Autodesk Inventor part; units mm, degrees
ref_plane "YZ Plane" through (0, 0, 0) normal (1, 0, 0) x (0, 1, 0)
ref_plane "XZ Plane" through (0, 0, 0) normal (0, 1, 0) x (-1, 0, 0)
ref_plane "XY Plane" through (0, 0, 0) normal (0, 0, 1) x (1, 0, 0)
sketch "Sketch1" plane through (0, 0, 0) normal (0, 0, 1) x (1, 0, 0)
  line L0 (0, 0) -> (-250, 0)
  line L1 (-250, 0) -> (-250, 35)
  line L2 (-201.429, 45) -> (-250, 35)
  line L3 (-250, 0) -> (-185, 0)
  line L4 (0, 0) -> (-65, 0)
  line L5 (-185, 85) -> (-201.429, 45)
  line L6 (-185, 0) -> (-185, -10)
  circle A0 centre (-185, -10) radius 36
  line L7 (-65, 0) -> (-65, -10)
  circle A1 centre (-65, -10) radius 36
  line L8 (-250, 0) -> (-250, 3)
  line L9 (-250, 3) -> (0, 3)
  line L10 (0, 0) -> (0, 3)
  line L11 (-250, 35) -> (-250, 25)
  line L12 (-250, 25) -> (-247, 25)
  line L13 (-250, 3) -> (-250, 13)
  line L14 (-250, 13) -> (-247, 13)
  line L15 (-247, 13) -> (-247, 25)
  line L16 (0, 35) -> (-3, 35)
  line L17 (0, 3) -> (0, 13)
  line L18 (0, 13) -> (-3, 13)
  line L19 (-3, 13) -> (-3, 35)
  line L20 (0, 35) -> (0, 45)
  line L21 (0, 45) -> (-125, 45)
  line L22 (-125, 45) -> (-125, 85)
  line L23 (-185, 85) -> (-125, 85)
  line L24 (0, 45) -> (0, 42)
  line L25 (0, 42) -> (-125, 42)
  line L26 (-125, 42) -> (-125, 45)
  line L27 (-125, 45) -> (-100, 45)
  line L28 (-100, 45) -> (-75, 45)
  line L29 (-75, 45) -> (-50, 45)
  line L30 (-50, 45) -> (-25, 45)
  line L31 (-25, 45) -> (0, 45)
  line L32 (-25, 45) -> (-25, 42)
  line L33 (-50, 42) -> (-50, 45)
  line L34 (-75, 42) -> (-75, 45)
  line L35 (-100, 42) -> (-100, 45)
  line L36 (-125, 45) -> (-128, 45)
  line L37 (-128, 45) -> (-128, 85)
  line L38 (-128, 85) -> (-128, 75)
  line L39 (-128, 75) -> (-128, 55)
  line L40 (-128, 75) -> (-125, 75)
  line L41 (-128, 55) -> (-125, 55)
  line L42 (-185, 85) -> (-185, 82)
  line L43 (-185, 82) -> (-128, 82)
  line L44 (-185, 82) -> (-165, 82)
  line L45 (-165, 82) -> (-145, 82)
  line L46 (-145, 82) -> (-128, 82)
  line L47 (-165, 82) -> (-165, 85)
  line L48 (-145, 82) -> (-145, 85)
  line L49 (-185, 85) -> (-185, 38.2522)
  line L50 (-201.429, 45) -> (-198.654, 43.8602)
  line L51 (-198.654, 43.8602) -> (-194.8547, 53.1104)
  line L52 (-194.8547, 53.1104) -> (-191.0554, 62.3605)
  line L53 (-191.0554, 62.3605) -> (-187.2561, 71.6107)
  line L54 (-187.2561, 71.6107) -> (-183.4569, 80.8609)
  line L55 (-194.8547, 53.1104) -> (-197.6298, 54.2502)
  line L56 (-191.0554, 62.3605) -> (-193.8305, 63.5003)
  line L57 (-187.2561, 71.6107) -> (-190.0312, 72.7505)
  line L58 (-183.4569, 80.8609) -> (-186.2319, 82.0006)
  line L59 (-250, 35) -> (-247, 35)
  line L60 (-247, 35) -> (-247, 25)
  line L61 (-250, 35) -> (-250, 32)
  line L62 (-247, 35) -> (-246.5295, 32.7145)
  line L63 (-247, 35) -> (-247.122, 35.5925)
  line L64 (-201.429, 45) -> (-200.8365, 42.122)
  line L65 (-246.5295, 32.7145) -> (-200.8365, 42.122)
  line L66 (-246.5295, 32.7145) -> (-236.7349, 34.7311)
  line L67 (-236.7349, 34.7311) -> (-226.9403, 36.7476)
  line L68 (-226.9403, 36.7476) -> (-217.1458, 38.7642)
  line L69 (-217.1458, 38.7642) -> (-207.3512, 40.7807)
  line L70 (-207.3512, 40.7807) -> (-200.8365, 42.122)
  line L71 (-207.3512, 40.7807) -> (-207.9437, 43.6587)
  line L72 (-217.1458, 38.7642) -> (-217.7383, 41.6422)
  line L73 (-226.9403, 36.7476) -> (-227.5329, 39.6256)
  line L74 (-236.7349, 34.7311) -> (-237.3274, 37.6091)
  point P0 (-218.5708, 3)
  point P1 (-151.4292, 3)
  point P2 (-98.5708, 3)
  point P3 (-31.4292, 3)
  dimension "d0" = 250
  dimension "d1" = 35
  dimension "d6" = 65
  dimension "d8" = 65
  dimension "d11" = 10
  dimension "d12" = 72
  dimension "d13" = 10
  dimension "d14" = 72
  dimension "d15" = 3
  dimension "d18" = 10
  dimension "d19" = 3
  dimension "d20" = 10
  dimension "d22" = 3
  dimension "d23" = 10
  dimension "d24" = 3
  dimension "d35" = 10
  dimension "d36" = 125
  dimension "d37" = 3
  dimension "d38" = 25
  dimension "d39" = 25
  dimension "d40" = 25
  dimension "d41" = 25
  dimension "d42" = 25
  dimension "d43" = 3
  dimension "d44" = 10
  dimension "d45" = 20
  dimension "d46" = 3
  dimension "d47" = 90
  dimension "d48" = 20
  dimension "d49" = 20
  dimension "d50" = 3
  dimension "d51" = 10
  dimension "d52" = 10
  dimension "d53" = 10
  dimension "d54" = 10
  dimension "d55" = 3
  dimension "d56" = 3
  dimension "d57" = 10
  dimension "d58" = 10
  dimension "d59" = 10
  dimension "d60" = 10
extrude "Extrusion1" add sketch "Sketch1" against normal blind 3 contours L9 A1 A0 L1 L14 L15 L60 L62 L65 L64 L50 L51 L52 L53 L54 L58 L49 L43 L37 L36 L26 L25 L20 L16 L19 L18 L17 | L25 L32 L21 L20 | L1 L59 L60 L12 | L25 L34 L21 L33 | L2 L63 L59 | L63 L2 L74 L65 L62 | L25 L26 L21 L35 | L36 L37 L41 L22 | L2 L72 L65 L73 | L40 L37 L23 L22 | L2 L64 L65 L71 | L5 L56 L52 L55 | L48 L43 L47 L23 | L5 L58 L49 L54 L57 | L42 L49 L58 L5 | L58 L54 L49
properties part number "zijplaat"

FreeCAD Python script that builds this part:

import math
import FreeCAD as App
import Part
import Sketcher

V = App.Vector
Q = App.Units.Quantity

doc = App.newDocument("Part")
body = doc.addObject("PartDesign::Body", "Body")

# Sketch on XY plane
sketch1 = body.newObject("Sketcher::SketchObject", "Sketch")
sketch1.AttachmentSupport = (doc.getObject("XY_Plane"), [""])
sketch1.MapMode = "FlatFace"
sketch1.addGeometry([
    Part.LineSegment(V(-31.4, 3, 0), V(0, 3, 0)),  # 0
    Part.LineSegment(V(0, 3, 0), V(0, 13, 0)),  # 1
    Part.LineSegment(V(0, 13, 0), V(-3, 13, 0)),  # 2
    Part.LineSegment(V(-3, 13, 0), V(-3, 35, 0)),  # 3
    Part.LineSegment(V(-3, 35, 0), V(0, 35, 0)),  # 4
    Part.LineSegment(V(0, 35, 0), V(0, 45, 0)),  # 5
    Part.LineSegment(V(0, 45, 0), V(-25, 45, 0)),  # 6
    Part.LineSegment(V(-25, 45, 0), V(-25, 42, 0)),  # 7
    Part.LineSegment(V(-25, 42, 0), V(-50, 42, 0)),  # 8
    Part.LineSegment(V(-50, 42, 0), V(-50, 45, 0)),  # 9
    Part.LineSegment(V(-50, 45, 0), V(-75, 45, 0)),  # 10
    Part.LineSegment(V(-75, 45, 0), V(-75, 42, 0)),  # 11
    Part.LineSegment(V(-75, 42, 0), V(-100, 42, 0)),  # 12
    Part.LineSegment(V(-100, 42, 0), V(-100, 45, 0)),  # 13
    Part.LineSegment(V(-100, 45, 0), V(-125, 45, 0)),  # 14
    Part.LineSegment(V(-125, 45, 0), V(-125, 55, 0)),  # 15
    Part.LineSegment(V(-125, 55, 0), V(-128, 55, 0)),  # 16
    Part.LineSegment(V(-128, 55, 0), V(-128, 75, 0)),  # 17
    Part.LineSegment(V(-128, 75, 0), V(-125, 75, 0)),  # 18
    Part.LineSegment(V(-125, 75, 0), V(-125, 85, 0)),  # 19
    Part.LineSegment(V(-125, 85, 0), V(-128, 85, 0)),  # 20
    Part.LineSegment(V(-128, 85, 0), V(-128, 82, 0)),  # 21
    Part.LineSegment(V(-128, 82, 0), V(-145, 82, 0)),  # 22
    Part.LineSegment(V(-145, 82, 0), V(-145, 85, 0)),  # 23
    Part.LineSegment(V(-145, 85, 0), V(-165, 85, 0)),  # 24
    Part.LineSegment(V(-165, 85, 0), V(-165, 82, 0)),  # 25
    Part.LineSegment(V(-165, 82, 0), V(-185, 82, 0)),  # 26
    Part.LineSegment(V(-185, 82, 0), V(-185, 85, 0)),  # 27
    Part.LineSegment(V(-185, 85, 0), V(-190, 72.8, 0)),  # 28
    Part.LineSegment(V(-190, 72.8, 0), V(-187.3, 71.6, 0)),  # 29
    Part.LineSegment(V(-187.3, 71.6, 0), V(-191.1, 62.4, 0)),  # 30
    Part.LineSegment(V(-191.1, 62.4, 0), V(-193.8, 63.5, 0)),  # 31
    Part.LineSegment(V(-193.8, 63.5, 0), V(-197.6, 54.3, 0)),  # 32
    Part.LineSegment(V(-197.6, 54.3, 0), V(-194.9, 53.1, 0)),  # 33
    Part.LineSegment(V(-194.9, 53.1, 0), V(-198.7, 43.9, 0)),  # 34
    Part.LineSegment(V(-198.7, 43.9, 0), V(-201.4, 45, 0)),  # 35
    Part.LineSegment(V(-201.4, 45, 0), V(-207.9, 43.7, 0)),  # 36
    Part.LineSegment(V(-207.9, 43.7, 0), V(-207.4, 40.8, 0)),  # 37
    Part.LineSegment(V(-207.4, 40.8, 0), V(-217.1, 38.8, 0)),  # 38
    Part.LineSegment(V(-217.1, 38.8, 0), V(-217.7, 41.6, 0)),  # 39
    Part.LineSegment(V(-217.7, 41.6, 0), V(-227.5, 39.6, 0)),  # 40
    Part.LineSegment(V(-227.5, 39.6, 0), V(-226.9, 36.7, 0)),  # 41
    Part.LineSegment(V(-226.9, 36.7, 0), V(-236.7, 34.7, 0)),  # 42
    Part.LineSegment(V(-236.7, 34.7, 0), V(-237.3, 37.6, 0)),  # 43
    Part.LineSegment(V(-237.3, 37.6, 0), V(-250, 35, 0)),  # 44
    Part.LineSegment(V(-250, 35, 0), V(-250, 25, 0)),  # 45
    Part.LineSegment(V(-250, 25, 0), V(-247, 25, 0)),  # 46
    Part.LineSegment(V(-247, 25, 0), V(-247, 13, 0)),  # 47
    Part.LineSegment(V(-247, 13, 0), V(-250, 13, 0)),  # 48
    Part.LineSegment(V(-250, 13, 0), V(-250, 3, 0)),  # 49
    Part.LineSegment(V(-250, 3, 0), V(-218.6, 3, 0)),  # 50
    Part.ArcOfCircle(Part.Circle(V(-185, -10, 0), V(0, 0, 1), 36), math.radians(21), math.radians(159)),  # 51
    Part.LineSegment(V(-151.4, 3, 0), V(-98.6, 3, 0)),  # 52
    Part.ArcOfCircle(Part.Circle(V(-65, -10, 0), V(0, 0, 1), 36), math.radians(21), math.radians(159)),  # 53
], False)
sketch1.addConstraint([
    Sketcher.Constraint("Coincident", 0, 2, 1, 1),
    Sketcher.Constraint("Coincident", 1, 2, 2, 1),
    Sketcher.Constraint("Coincident", 2, 2, 3, 1),
    Sketcher.Constraint("Coincident", 3, 2, 4, 1),
    Sketcher.Constraint("Coincident", 4, 2, 5, 1),
    Sketcher.Constraint("Coincident", 5, 2, 6, 1),
    Sketcher.Constraint("Coincident", 6, 2, 7, 1),
    Sketcher.Constraint("Coincident", 7, 2, 8, 1),
    Sketcher.Constraint("Coincident", 8, 2, 9, 1),
    Sketcher.Constraint("Coincident", 9, 2, 10, 1),
    Sketcher.Constraint("Coincident", 10, 2, 11, 1),
    Sketcher.Constraint("Coincident", 11, 2, 12, 1),
    Sketcher.Constraint("Coincident", 12, 2, 13, 1),
    Sketcher.Constraint("Coincident", 13, 2, 14, 1),
    Sketcher.Constraint("Coincident", 14, 2, 15, 1),
    Sketcher.Constraint("Coincident", 15, 2, 16, 1),
    Sketcher.Constraint("Coincident", 16, 2, 17, 1),
    Sketcher.Constraint("Coincident", 17, 2, 18, 1),
    Sketcher.Constraint("Coincident", 18, 2, 19, 1),
    Sketcher.Constraint("Coincident", 19, 2, 20, 1),
    Sketcher.Constraint("Coincident", 20, 2, 21, 1),
    Sketcher.Constraint("Coincident", 21, 2, 22, 1),
    Sketcher.Constraint("Coincident", 22, 2, 23, 1),
    Sketcher.Constraint("Coincident", 23, 2, 24, 1),
    Sketcher.Constraint("Coincident", 24, 2, 25, 1),
    Sketcher.Constraint("Coincident", 25, 2, 26, 1),
    Sketcher.Constraint("Coincident", 26, 2, 27, 1),
    Sketcher.Constraint("Coincident", 27, 2, 28, 1),
    Sketcher.Constraint("Coincident", 28, 2, 29, 1),
    Sketcher.Constraint("Coincident", 29, 2, 30, 1),
    Sketcher.Constraint("Coincident", 30, 2, 31, 1),
    Sketcher.Constraint("Coincident", 31, 2, 32, 1),
    Sketcher.Constraint("Coincident", 32, 2, 33, 1),
    Sketcher.Constraint("Coincident", 33, 2, 34, 1),
    Sketcher.Constraint("Coincident", 34, 2, 35, 1),
    Sketcher.Constraint("Coincident", 35, 2, 36, 1),
    Sketcher.Constraint("Coincident", 36, 2, 37, 1),
    Sketcher.Constraint("Coincident", 37, 2, 38, 1),
    Sketcher.Constraint("Coincident", 38, 2, 39, 1),
    Sketcher.Constraint("Coincident", 39, 2, 40, 1),
    Sketcher.Constraint("Coincident", 40, 2, 41, 1),
    Sketcher.Constraint("Coincident", 41, 2, 42, 1),
    Sketcher.Constraint("Coincident", 42, 2, 43, 1),
    Sketcher.Constraint("Coincident", 43, 2, 44, 1),
    Sketcher.Constraint("Coincident", 44, 2, 45, 1),
    Sketcher.Constraint("Coincident", 45, 2, 46, 1),
    Sketcher.Constraint("Coincident", 46, 2, 47, 1),
    Sketcher.Constraint("Coincident", 47, 2, 48, 1),
    Sketcher.Constraint("Coincident", 48, 2, 49, 1),
    Sketcher.Constraint("Coincident", 49, 2, 50, 1),
    Sketcher.Constraint("Coincident", 50, 2, 51, 2),
    Sketcher.Constraint("Coincident", 51, 1, 52, 1),
    Sketcher.Constraint("Coincident", 52, 2, 53, 2),
    Sketcher.Constraint("Coincident", 53, 1, 0, 1),
    Sketcher.Constraint("Horizontal", 0),
    Sketcher.Constraint("Vertical", 1),
    Sketcher.Constraint("Horizontal", 2),
    Sketcher.Constraint("Vertical", 3),
    Sketcher.Constraint("Horizontal", 4),
    Sketcher.Constraint("Vertical", 5),
    Sketcher.Constraint("Horizontal", 6),
    Sketcher.Constraint("Vertical", 7),
    Sketcher.Constraint("Horizontal", 8),
    Sketcher.Constraint("Vertical", 9),
    Sketcher.Constraint("Horizontal", 10),
    Sketcher.Constraint("Vertical", 11),
    Sketcher.Constraint("Horizontal", 12),
    Sketcher.Constraint("Vertical", 13),
    Sketcher.Constraint("Horizontal", 14),
    Sketcher.Constraint("Vertical", 15),
    Sketcher.Constraint("Horizontal", 16),
    Sketcher.Constraint("Vertical", 17),
    Sketcher.Constraint("Horizontal", 18),
    Sketcher.Constraint("Vertical", 19),
    Sketcher.Constraint("Horizontal", 20),
    Sketcher.Constraint("Vertical", 21),
    Sketcher.Constraint("Horizontal", 22),
    Sketcher.Constraint("Vertical", 23),
    Sketcher.Constraint("Horizontal", 24),
    Sketcher.Constraint("Vertical", 25),
    Sketcher.Constraint("Horizontal", 26),
    Sketcher.Constraint("Vertical", 27),
    Sketcher.Constraint("Vertical", 45),
    Sketcher.Constraint("Horizontal", 46),
    Sketcher.Constraint("Vertical", 47),
    Sketcher.Constraint("Horizontal", 48),
    Sketcher.Constraint("Vertical", 49),
    Sketcher.Constraint("Horizontal", 50),
    Sketcher.Constraint("Horizontal", 52),
    Sketcher.Constraint("Equal", 51, 53),
    Sketcher.Constraint("PointOnObject", 0, 2, -2),
    Sketcher.Constraint("PointOnObject", 4, 2, -2),
    Sketcher.Constraint("Perpendicular", 28, 29),
    Sketcher.Constraint("Perpendicular", 29, 30),
    Sketcher.Constraint("Perpendicular", 30, 31),
    Sketcher.Constraint("Perpendicular", 31, 32),
    Sketcher.Constraint("Perpendicular", 32, 33),
    Sketcher.Constraint("Perpendicular", 33, 34),
    Sketcher.Constraint("Perpendicular", 34, 35),
    Sketcher.Constraint("Perpendicular", 36, 37),
    Sketcher.Constraint("Perpendicular", 37, 38),
    Sketcher.Constraint("Perpendicular", 38, 39),
    Sketcher.Constraint("Perpendicular", 39, 40),
    Sketcher.Constraint("Perpendicular", 40, 41),
    Sketcher.Constraint("Perpendicular", 41, 42),
    Sketcher.Constraint("Perpendicular", 42, 43),
    Sketcher.Constraint("Perpendicular", 43, 44),
    Sketcher.Constraint("Horizontal", 51, 3, 53, 3),
    Sketcher.Constraint("Horizontal", 6, 2, 9, 2),
    Sketcher.Constraint("Horizontal", 8, 2, 11, 2),
    Sketcher.Constraint("Horizontal", 10, 2, 13, 2),
    Sketcher.Constraint("Horizontal", 20, 2, 23, 2),
    Sketcher.Constraint("Horizontal", 22, 2, 25, 2),
    Sketcher.Constraint("Horizontal", 24, 2, 27, 2),
    Sketcher.Constraint("Horizontal", 14, 2, 35, 2),
    Sketcher.Constraint("Horizontal", 4, 2, 44, 2),
    Sketcher.Constraint("Horizontal", 2, 2, 47, 2),
    Sketcher.Constraint("Horizontal", 0, 2, 49, 2),
    Sketcher.Constraint("Horizontal", 50, 2, 51, 1),
    Sketcher.Constraint("Vertical", 15, 2, 18, 2),
    Sketcher.Constraint("Vertical", 17, 2, 20, 2),
    Sketcher.Constraint("Vertical", 51, 3, 26, 2),
    Sketcher.Constraint("Vertical", 45, 2, 48, 2),
    Sketcher.Constraint("Equal", 6, 8),
    Sketcher.Constraint("Equal", 8, 10),
    Sketcher.Constraint("Equal", 10, 12),
    Sketcher.Constraint("Equal", 12, 14),
    Sketcher.Constraint("Equal", 4, 16),
    Sketcher.Constraint("Equal", 24, 26),
    Sketcher.Constraint("Equal", 20, 46),
    Sketcher.Constraint("Equal", 0, 50),
    Sketcher.Constraint("Equal", 1, 5),
    Sketcher.Constraint("Equal", 48, 7),
    Sketcher.Constraint("Equal", 5, 15),
    Sketcher.Constraint("Equal", 26, 17),
    Sketcher.Constraint("Equal", 15, 19),
    Sketcher.Constraint("Equal", 13, 21),
    Sketcher.Constraint("Equal", 19, 45),
    Sketcher.Constraint("Equal", 29, 31),
    Sketcher.Constraint("Equal", 30, 32),
    Sketcher.Constraint("Equal", 31, 33),
    Sketcher.Constraint("Equal", 32, 34),
    Sketcher.Constraint("Equal", 33, 35),
    Sketcher.Constraint("Equal", 34, 38),
    Sketcher.Constraint("Equal", 37, 39),
    Sketcher.Constraint("Equal", 38, 40),
    Sketcher.Constraint("Equal", 39, 41),
    Sketcher.Constraint("Equal", 40, 42),
    Sketcher.Constraint("Equal", 41, 43),
    Sketcher.Constraint("Radius", 51, 36.0),
    Sketcher.Constraint("DistanceX", 2, 2, 2, 1, 3.0),
    Sketcher.Constraint("DistanceX", 6, 2, 6, 1, 25.0),
    Sketcher.Constraint("DistanceX", 24, 2, 24, 1, 20.0),
    Sketcher.Constraint("DistanceY", 1, 1, 1, 2, 10.0),
    Sketcher.Constraint("Distance", 29, 3.0),
    Sketcher.Constraint("Distance", 30, 10.0),
    Sketcher.Constraint("DistanceY", 51, 3, -1, 1, 10.0),
    Sketcher.Constraint("DistanceX", 53, 3, -1, 1, 65.0),
    Sketcher.Constraint("DistanceY", -1, 1, 0, 2, 3.0),
    Sketcher.Constraint("DistanceY", -1, 1, 3, 2, 35.0),
    Sketcher.Constraint("DistanceX", 44, 2, -1, 1, 250.0),
    Sketcher.Constraint("Angle", 28, Q("-112.3293 deg")),
    Sketcher.Constraint("DistanceX", 40, 2, -1, 1, 227.533),
    Sketcher.Constraint("DistanceX", 42, 2, -1, 1, 236.735),
])
pad1 = body.newObject("PartDesign::Pad", "Pad")
pad1.Profile = sketch1
pad1.Length = 3
pad1.Reversed = True

doc.recompute()
